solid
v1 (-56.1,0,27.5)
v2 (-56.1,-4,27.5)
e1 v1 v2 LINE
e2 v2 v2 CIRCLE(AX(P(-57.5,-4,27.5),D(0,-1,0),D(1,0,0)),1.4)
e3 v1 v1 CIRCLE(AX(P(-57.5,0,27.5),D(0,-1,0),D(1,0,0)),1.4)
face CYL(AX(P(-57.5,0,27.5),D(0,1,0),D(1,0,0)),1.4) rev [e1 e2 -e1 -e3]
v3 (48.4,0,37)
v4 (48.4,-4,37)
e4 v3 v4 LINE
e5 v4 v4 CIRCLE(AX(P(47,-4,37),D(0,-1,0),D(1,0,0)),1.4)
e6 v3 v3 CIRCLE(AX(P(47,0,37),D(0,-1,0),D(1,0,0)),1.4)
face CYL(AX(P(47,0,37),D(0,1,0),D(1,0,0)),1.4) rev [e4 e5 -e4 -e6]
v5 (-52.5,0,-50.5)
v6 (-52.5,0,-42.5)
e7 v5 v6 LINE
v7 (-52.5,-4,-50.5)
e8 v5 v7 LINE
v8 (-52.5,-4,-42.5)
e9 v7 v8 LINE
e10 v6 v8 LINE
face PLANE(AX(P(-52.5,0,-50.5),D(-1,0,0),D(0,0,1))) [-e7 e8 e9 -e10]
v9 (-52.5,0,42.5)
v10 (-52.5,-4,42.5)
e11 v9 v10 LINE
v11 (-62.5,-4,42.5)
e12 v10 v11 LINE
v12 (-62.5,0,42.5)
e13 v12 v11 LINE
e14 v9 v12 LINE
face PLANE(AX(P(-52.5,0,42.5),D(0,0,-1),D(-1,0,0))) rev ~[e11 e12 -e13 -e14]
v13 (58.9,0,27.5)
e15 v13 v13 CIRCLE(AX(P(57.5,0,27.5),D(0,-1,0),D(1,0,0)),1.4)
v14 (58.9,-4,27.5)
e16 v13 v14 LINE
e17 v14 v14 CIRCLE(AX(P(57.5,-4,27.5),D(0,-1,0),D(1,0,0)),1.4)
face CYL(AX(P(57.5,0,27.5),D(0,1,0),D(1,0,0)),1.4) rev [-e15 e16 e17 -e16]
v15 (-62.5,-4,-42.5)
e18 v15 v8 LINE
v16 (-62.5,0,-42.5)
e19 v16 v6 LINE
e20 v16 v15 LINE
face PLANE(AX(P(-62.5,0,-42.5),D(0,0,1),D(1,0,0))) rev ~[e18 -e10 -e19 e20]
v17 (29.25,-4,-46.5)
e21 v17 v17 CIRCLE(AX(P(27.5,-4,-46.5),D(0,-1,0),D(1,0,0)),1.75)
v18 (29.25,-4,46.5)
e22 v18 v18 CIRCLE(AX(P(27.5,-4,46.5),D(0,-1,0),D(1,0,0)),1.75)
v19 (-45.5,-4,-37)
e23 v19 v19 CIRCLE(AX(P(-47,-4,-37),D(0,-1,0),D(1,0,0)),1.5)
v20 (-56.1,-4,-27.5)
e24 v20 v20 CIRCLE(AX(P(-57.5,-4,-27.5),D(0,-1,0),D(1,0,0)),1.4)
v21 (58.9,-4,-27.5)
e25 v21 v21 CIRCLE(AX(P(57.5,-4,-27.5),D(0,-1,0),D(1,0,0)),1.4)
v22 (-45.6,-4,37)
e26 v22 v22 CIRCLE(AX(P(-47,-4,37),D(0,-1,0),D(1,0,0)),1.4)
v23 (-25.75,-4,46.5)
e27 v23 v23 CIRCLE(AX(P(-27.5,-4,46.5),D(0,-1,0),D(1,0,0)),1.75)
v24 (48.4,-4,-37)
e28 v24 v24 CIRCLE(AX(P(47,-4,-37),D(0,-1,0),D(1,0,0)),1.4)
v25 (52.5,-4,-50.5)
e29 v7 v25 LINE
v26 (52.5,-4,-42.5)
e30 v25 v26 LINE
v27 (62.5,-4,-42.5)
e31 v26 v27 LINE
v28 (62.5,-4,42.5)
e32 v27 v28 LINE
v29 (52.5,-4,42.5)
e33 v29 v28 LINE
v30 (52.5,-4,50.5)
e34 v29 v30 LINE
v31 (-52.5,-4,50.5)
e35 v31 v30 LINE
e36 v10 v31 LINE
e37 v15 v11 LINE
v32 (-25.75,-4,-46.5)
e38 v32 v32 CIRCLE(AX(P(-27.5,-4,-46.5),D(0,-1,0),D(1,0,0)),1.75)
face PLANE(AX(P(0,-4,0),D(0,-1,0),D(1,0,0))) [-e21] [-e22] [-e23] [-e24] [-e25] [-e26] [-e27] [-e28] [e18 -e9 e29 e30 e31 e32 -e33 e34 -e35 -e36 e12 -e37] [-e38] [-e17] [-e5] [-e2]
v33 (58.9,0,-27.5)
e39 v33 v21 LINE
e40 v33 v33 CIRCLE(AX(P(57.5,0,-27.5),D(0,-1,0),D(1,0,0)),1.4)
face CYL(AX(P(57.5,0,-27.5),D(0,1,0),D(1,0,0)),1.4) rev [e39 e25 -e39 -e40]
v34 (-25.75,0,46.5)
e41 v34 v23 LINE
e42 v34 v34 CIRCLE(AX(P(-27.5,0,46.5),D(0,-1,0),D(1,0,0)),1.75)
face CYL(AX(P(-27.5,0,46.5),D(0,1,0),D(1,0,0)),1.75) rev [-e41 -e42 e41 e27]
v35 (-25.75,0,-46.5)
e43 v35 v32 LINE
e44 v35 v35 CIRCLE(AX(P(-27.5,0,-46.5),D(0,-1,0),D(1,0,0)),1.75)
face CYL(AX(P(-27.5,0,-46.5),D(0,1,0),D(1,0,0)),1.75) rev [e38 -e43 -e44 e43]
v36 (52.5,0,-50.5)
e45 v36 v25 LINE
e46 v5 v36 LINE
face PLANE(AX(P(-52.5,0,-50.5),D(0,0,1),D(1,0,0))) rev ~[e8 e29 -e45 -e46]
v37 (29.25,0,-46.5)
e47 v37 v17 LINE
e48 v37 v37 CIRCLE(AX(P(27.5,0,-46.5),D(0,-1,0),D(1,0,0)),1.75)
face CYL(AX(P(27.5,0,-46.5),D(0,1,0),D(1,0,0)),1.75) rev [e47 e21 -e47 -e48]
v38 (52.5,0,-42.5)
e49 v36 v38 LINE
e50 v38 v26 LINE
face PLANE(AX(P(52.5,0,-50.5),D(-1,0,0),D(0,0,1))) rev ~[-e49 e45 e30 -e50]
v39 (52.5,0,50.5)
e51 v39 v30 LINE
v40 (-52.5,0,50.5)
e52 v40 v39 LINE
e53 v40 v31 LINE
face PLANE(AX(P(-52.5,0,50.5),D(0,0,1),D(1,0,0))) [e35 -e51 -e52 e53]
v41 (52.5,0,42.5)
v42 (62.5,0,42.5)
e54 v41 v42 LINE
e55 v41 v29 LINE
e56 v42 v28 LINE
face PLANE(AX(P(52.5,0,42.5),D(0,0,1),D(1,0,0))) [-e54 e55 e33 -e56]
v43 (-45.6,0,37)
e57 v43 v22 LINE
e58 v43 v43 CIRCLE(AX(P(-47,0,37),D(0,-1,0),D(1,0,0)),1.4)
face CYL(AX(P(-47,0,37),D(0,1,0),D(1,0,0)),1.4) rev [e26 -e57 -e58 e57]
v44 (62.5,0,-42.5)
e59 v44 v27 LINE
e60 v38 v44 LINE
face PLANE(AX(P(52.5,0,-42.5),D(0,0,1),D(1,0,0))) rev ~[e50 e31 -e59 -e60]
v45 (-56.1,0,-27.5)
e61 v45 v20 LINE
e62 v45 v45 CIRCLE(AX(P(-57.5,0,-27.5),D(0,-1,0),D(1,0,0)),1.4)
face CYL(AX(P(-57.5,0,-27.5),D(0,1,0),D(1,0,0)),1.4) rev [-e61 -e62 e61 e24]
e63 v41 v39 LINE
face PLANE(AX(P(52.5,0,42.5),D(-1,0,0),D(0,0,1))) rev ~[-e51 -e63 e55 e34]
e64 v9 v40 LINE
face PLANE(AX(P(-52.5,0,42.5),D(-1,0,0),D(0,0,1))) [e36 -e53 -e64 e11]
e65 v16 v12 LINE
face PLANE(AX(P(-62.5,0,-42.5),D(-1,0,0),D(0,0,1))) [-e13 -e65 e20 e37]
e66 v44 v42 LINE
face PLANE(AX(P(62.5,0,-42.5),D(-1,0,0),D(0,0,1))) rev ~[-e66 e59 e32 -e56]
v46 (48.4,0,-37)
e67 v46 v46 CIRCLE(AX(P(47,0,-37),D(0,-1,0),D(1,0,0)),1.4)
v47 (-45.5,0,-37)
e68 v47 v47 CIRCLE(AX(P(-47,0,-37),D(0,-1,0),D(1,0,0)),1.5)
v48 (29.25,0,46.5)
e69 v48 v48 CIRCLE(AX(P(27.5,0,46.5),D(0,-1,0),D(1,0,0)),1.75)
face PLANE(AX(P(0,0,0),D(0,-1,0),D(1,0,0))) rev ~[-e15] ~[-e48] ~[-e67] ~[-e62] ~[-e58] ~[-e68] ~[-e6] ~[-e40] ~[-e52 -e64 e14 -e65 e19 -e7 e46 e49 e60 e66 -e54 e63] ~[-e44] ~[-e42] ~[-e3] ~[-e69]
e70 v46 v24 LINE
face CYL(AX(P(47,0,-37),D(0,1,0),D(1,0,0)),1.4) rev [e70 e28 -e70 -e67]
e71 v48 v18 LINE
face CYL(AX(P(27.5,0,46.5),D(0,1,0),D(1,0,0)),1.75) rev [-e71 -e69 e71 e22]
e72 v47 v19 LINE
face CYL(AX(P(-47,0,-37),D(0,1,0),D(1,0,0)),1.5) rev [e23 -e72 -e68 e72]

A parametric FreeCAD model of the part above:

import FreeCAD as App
import Part
import Sketcher

V = App.Vector


def add_polygon(sketch, points):
    """Adds a closed chain of lines whose ends are joined by coincident constraints."""
    first, n = sketch.GeometryCount, len(points)
    for a, b in zip(points, points[1:] + points[:1]):
        sketch.addGeometry(Part.LineSegment(App.Vector(*a, 0), App.Vector(*b, 0)), False)
    for i in range(n):
        sketch.addConstraint(Sketcher.Constraint("Coincident", first + i, 2, first + (i + 1) % n, 1))

doc = App.newDocument("Part")
params = doc.addObject("Spreadsheet::Sheet", "Params")
for row, (alias, value) in enumerate([
    ("sketch1_diameter", "3 mm"),
    ("sketch1_diameter2", "2.8 mm"),
    ("sketch1_diameter3", "3.5 mm"),
    ("sketch1_width", "105 mm"),
    ("sketch1_width2", "10 mm"),
    ("pad1_length", "4 mm"),
], start=1):
    params.set(f"A{row}", alias)
    params.set(f"B{row}", "=" + value)
    params.setAlias(f"B{row}", alias)

body = doc.addObject("PartDesign::Body", "Body")

sketch1 = doc.addObject("Sketcher::SketchObject", "Sketch")
body.addObject(sketch1)
sketch1.AttachmentSupport = (doc.XZ_Plane, [""])
sketch1.MapMode = "FlatFace"
add_polygon(sketch1, [(52.5, 42.5), (52.5, 50.5), (-52.5, 50.5), (-52.5, 42.5), (-62.5, 42.5), (-62.5, -42.5), (-52.5, -42.5), (-52.5, -50.5), (52.5, -50.5), (52.5, -42.5), (62.5, -42.5), (62.5, 42.5)])
sketch1.addGeometry(Part.Circle(V(-47, -37, 0), V(0, 0, 1), 1.5), False)
sketch1.addGeometry(Part.Circle(V(-57.5, -27.5, 0), V(0, 0, 1), 1.4), False)
sketch1.addGeometry(Part.Circle(V(-27.5, -46.5, 0), V(0, 0, 1), 1.8), False)
sketch1.addGeometry(Part.Circle(V(27.5, -46.5, 0), V(0, 0, 1), 1.8), False)
sketch1.addGeometry(Part.Circle(V(47, -37, 0), V(0, 0, 1), 1.4), False)
sketch1.addGeometry(Part.Circle(V(57.5, -27.5, 0), V(0, 0, 1), 1.4), False)
sketch1.addGeometry(Part.Circle(V(-57.5, 27.5, 0), V(0, 0, 1), 1.4), False)
sketch1.addGeometry(Part.Circle(V(-47, 37, 0), V(0, 0, 1), 1.4), False)
sketch1.addGeometry(Part.Circle(V(-27.5, 46.5, 0), V(0, 0, 1), 1.8), False)
sketch1.addGeometry(Part.Circle(V(27.5, 46.5, 0), V(0, 0, 1), 1.8), False)
sketch1.addGeometry(Part.Circle(V(57.5, 27.5, 0), V(0, 0, 1), 1.4), False)
sketch1.addGeometry(Part.Circle(V(47, 37, 0), V(0, 0, 1), 1.4), False)
sketch1.addConstraint([
    Sketcher.Constraint("Vertical", 0),
    Sketcher.Constraint("Horizontal", 1),
    Sketcher.Constraint("Vertical", 2),
    Sketcher.Constraint("Horizontal", 3),
    Sketcher.Constraint("Vertical", 4),
    Sketcher.Constraint("Horizontal", 5),
    Sketcher.Constraint("Vertical", 6),
    Sketcher.Constraint("Horizontal", 7),
    Sketcher.Constraint("Vertical", 8),
    Sketcher.Constraint("Horizontal", 9),
    Sketcher.Constraint("Vertical", 10),
    Sketcher.Constraint("Horizontal", 11),
    Sketcher.Constraint("Equal", 14, 15),
    Sketcher.Constraint("Equal", 13, 16),
    Sketcher.Constraint("Equal", 16, 17),
    Sketcher.Constraint("Equal", 17, 18),
    Sketcher.Constraint("Equal", 18, 19),
    Sketcher.Constraint("Equal", 15, 20),
    Sketcher.Constraint("Equal", 20, 21),
    Sketcher.Constraint("Equal", 19, 22),
    Sketcher.Constraint("Equal", 22, 23),
    Sketcher.Constraint("Symmetric", 17, 3, 18, 3, -1, 1),
    Sketcher.Constraint("Symmetric", 16, 3, 19, 3, -1, 1),
    Sketcher.Constraint("Symmetric", 15, 3, 20, 3, -1, 1),
    Sketcher.Constraint("Symmetric", 14, 3, 21, 3, -1, 1),
    Sketcher.Constraint("Symmetric", 13, 3, 22, 3, -1, 1),
    Sketcher.Constraint("Symmetric", 12, 3, 23, 3, -1, 1),
    Sketcher.Constraint("Symmetric", 0, 2, 6, 2, -1, 1),
    Sketcher.Constraint("Symmetric", 2, 2, 8, 2, -1, 1),
    Sketcher.Constraint("Symmetric", 4, 2, 10, 2, -1, 1),
    Sketcher.Constraint("Symmetric", 14, 3, 15, 3, -2),
    Sketcher.Constraint("Symmetric", 12, 3, 16, 3, -2),
    Sketcher.Constraint("Symmetric", 13, 3, 17, 3, -2),
    Sketcher.Constraint("Symmetric", 5, 2, 8, 2, -2),
    Sketcher.Constraint("Diameter", 12, 3.0),
    Sketcher.Constraint("Diameter", 13, 2.8),
    Sketcher.Constraint("Diameter", 14, 3.5),
    Sketcher.Constraint("DistanceX", 1, 2, 1, 1, 105.0),
    Sketcher.Constraint("DistanceX", 3, 2, 3, 1, 10.0),
    Sketcher.Constraint("DistanceY", 0, 1, 0, 2, 8.0),
    Sketcher.Constraint("DistanceY", 4, 2, 4, 1, 85.0),
    Sketcher.Constraint("DistanceX", 12, 3, -1, 1, 47.0),
    Sketcher.Constraint("DistanceY", 12, 3, -1, 1, 37.0),
    Sketcher.Constraint("DistanceX", 13, 3, 14, 3, 30.0),
    Sketcher.Constraint("DistanceY", 14, 3, 13, 3, 19.0),
    Sketcher.Constraint("DistanceX", 14, 3, 15, 3, 55.0),
    Sketcher.Constraint("DistanceY", 13, 3, 18, 3, 55.0),
])
sketch1.setExpression("Constraints[46]", "Params.sketch1_diameter")
sketch1.setExpression("Constraints[47]", "Params.sketch1_diameter2")
sketch1.setExpression("Constraints[48]", "Params.sketch1_diameter3")
sketch1.setExpression("Constraints[49]", "Params.sketch1_width")
sketch1.setExpression("Constraints[50]", "Params.sketch1_width2")
pad1 = doc.addObject("PartDesign::Pad", "Pad")
body.addObject(pad1)
pad1.Profile = sketch1
pad1.setExpression("Length", "Params.pad1_length")

doc.recompute()
